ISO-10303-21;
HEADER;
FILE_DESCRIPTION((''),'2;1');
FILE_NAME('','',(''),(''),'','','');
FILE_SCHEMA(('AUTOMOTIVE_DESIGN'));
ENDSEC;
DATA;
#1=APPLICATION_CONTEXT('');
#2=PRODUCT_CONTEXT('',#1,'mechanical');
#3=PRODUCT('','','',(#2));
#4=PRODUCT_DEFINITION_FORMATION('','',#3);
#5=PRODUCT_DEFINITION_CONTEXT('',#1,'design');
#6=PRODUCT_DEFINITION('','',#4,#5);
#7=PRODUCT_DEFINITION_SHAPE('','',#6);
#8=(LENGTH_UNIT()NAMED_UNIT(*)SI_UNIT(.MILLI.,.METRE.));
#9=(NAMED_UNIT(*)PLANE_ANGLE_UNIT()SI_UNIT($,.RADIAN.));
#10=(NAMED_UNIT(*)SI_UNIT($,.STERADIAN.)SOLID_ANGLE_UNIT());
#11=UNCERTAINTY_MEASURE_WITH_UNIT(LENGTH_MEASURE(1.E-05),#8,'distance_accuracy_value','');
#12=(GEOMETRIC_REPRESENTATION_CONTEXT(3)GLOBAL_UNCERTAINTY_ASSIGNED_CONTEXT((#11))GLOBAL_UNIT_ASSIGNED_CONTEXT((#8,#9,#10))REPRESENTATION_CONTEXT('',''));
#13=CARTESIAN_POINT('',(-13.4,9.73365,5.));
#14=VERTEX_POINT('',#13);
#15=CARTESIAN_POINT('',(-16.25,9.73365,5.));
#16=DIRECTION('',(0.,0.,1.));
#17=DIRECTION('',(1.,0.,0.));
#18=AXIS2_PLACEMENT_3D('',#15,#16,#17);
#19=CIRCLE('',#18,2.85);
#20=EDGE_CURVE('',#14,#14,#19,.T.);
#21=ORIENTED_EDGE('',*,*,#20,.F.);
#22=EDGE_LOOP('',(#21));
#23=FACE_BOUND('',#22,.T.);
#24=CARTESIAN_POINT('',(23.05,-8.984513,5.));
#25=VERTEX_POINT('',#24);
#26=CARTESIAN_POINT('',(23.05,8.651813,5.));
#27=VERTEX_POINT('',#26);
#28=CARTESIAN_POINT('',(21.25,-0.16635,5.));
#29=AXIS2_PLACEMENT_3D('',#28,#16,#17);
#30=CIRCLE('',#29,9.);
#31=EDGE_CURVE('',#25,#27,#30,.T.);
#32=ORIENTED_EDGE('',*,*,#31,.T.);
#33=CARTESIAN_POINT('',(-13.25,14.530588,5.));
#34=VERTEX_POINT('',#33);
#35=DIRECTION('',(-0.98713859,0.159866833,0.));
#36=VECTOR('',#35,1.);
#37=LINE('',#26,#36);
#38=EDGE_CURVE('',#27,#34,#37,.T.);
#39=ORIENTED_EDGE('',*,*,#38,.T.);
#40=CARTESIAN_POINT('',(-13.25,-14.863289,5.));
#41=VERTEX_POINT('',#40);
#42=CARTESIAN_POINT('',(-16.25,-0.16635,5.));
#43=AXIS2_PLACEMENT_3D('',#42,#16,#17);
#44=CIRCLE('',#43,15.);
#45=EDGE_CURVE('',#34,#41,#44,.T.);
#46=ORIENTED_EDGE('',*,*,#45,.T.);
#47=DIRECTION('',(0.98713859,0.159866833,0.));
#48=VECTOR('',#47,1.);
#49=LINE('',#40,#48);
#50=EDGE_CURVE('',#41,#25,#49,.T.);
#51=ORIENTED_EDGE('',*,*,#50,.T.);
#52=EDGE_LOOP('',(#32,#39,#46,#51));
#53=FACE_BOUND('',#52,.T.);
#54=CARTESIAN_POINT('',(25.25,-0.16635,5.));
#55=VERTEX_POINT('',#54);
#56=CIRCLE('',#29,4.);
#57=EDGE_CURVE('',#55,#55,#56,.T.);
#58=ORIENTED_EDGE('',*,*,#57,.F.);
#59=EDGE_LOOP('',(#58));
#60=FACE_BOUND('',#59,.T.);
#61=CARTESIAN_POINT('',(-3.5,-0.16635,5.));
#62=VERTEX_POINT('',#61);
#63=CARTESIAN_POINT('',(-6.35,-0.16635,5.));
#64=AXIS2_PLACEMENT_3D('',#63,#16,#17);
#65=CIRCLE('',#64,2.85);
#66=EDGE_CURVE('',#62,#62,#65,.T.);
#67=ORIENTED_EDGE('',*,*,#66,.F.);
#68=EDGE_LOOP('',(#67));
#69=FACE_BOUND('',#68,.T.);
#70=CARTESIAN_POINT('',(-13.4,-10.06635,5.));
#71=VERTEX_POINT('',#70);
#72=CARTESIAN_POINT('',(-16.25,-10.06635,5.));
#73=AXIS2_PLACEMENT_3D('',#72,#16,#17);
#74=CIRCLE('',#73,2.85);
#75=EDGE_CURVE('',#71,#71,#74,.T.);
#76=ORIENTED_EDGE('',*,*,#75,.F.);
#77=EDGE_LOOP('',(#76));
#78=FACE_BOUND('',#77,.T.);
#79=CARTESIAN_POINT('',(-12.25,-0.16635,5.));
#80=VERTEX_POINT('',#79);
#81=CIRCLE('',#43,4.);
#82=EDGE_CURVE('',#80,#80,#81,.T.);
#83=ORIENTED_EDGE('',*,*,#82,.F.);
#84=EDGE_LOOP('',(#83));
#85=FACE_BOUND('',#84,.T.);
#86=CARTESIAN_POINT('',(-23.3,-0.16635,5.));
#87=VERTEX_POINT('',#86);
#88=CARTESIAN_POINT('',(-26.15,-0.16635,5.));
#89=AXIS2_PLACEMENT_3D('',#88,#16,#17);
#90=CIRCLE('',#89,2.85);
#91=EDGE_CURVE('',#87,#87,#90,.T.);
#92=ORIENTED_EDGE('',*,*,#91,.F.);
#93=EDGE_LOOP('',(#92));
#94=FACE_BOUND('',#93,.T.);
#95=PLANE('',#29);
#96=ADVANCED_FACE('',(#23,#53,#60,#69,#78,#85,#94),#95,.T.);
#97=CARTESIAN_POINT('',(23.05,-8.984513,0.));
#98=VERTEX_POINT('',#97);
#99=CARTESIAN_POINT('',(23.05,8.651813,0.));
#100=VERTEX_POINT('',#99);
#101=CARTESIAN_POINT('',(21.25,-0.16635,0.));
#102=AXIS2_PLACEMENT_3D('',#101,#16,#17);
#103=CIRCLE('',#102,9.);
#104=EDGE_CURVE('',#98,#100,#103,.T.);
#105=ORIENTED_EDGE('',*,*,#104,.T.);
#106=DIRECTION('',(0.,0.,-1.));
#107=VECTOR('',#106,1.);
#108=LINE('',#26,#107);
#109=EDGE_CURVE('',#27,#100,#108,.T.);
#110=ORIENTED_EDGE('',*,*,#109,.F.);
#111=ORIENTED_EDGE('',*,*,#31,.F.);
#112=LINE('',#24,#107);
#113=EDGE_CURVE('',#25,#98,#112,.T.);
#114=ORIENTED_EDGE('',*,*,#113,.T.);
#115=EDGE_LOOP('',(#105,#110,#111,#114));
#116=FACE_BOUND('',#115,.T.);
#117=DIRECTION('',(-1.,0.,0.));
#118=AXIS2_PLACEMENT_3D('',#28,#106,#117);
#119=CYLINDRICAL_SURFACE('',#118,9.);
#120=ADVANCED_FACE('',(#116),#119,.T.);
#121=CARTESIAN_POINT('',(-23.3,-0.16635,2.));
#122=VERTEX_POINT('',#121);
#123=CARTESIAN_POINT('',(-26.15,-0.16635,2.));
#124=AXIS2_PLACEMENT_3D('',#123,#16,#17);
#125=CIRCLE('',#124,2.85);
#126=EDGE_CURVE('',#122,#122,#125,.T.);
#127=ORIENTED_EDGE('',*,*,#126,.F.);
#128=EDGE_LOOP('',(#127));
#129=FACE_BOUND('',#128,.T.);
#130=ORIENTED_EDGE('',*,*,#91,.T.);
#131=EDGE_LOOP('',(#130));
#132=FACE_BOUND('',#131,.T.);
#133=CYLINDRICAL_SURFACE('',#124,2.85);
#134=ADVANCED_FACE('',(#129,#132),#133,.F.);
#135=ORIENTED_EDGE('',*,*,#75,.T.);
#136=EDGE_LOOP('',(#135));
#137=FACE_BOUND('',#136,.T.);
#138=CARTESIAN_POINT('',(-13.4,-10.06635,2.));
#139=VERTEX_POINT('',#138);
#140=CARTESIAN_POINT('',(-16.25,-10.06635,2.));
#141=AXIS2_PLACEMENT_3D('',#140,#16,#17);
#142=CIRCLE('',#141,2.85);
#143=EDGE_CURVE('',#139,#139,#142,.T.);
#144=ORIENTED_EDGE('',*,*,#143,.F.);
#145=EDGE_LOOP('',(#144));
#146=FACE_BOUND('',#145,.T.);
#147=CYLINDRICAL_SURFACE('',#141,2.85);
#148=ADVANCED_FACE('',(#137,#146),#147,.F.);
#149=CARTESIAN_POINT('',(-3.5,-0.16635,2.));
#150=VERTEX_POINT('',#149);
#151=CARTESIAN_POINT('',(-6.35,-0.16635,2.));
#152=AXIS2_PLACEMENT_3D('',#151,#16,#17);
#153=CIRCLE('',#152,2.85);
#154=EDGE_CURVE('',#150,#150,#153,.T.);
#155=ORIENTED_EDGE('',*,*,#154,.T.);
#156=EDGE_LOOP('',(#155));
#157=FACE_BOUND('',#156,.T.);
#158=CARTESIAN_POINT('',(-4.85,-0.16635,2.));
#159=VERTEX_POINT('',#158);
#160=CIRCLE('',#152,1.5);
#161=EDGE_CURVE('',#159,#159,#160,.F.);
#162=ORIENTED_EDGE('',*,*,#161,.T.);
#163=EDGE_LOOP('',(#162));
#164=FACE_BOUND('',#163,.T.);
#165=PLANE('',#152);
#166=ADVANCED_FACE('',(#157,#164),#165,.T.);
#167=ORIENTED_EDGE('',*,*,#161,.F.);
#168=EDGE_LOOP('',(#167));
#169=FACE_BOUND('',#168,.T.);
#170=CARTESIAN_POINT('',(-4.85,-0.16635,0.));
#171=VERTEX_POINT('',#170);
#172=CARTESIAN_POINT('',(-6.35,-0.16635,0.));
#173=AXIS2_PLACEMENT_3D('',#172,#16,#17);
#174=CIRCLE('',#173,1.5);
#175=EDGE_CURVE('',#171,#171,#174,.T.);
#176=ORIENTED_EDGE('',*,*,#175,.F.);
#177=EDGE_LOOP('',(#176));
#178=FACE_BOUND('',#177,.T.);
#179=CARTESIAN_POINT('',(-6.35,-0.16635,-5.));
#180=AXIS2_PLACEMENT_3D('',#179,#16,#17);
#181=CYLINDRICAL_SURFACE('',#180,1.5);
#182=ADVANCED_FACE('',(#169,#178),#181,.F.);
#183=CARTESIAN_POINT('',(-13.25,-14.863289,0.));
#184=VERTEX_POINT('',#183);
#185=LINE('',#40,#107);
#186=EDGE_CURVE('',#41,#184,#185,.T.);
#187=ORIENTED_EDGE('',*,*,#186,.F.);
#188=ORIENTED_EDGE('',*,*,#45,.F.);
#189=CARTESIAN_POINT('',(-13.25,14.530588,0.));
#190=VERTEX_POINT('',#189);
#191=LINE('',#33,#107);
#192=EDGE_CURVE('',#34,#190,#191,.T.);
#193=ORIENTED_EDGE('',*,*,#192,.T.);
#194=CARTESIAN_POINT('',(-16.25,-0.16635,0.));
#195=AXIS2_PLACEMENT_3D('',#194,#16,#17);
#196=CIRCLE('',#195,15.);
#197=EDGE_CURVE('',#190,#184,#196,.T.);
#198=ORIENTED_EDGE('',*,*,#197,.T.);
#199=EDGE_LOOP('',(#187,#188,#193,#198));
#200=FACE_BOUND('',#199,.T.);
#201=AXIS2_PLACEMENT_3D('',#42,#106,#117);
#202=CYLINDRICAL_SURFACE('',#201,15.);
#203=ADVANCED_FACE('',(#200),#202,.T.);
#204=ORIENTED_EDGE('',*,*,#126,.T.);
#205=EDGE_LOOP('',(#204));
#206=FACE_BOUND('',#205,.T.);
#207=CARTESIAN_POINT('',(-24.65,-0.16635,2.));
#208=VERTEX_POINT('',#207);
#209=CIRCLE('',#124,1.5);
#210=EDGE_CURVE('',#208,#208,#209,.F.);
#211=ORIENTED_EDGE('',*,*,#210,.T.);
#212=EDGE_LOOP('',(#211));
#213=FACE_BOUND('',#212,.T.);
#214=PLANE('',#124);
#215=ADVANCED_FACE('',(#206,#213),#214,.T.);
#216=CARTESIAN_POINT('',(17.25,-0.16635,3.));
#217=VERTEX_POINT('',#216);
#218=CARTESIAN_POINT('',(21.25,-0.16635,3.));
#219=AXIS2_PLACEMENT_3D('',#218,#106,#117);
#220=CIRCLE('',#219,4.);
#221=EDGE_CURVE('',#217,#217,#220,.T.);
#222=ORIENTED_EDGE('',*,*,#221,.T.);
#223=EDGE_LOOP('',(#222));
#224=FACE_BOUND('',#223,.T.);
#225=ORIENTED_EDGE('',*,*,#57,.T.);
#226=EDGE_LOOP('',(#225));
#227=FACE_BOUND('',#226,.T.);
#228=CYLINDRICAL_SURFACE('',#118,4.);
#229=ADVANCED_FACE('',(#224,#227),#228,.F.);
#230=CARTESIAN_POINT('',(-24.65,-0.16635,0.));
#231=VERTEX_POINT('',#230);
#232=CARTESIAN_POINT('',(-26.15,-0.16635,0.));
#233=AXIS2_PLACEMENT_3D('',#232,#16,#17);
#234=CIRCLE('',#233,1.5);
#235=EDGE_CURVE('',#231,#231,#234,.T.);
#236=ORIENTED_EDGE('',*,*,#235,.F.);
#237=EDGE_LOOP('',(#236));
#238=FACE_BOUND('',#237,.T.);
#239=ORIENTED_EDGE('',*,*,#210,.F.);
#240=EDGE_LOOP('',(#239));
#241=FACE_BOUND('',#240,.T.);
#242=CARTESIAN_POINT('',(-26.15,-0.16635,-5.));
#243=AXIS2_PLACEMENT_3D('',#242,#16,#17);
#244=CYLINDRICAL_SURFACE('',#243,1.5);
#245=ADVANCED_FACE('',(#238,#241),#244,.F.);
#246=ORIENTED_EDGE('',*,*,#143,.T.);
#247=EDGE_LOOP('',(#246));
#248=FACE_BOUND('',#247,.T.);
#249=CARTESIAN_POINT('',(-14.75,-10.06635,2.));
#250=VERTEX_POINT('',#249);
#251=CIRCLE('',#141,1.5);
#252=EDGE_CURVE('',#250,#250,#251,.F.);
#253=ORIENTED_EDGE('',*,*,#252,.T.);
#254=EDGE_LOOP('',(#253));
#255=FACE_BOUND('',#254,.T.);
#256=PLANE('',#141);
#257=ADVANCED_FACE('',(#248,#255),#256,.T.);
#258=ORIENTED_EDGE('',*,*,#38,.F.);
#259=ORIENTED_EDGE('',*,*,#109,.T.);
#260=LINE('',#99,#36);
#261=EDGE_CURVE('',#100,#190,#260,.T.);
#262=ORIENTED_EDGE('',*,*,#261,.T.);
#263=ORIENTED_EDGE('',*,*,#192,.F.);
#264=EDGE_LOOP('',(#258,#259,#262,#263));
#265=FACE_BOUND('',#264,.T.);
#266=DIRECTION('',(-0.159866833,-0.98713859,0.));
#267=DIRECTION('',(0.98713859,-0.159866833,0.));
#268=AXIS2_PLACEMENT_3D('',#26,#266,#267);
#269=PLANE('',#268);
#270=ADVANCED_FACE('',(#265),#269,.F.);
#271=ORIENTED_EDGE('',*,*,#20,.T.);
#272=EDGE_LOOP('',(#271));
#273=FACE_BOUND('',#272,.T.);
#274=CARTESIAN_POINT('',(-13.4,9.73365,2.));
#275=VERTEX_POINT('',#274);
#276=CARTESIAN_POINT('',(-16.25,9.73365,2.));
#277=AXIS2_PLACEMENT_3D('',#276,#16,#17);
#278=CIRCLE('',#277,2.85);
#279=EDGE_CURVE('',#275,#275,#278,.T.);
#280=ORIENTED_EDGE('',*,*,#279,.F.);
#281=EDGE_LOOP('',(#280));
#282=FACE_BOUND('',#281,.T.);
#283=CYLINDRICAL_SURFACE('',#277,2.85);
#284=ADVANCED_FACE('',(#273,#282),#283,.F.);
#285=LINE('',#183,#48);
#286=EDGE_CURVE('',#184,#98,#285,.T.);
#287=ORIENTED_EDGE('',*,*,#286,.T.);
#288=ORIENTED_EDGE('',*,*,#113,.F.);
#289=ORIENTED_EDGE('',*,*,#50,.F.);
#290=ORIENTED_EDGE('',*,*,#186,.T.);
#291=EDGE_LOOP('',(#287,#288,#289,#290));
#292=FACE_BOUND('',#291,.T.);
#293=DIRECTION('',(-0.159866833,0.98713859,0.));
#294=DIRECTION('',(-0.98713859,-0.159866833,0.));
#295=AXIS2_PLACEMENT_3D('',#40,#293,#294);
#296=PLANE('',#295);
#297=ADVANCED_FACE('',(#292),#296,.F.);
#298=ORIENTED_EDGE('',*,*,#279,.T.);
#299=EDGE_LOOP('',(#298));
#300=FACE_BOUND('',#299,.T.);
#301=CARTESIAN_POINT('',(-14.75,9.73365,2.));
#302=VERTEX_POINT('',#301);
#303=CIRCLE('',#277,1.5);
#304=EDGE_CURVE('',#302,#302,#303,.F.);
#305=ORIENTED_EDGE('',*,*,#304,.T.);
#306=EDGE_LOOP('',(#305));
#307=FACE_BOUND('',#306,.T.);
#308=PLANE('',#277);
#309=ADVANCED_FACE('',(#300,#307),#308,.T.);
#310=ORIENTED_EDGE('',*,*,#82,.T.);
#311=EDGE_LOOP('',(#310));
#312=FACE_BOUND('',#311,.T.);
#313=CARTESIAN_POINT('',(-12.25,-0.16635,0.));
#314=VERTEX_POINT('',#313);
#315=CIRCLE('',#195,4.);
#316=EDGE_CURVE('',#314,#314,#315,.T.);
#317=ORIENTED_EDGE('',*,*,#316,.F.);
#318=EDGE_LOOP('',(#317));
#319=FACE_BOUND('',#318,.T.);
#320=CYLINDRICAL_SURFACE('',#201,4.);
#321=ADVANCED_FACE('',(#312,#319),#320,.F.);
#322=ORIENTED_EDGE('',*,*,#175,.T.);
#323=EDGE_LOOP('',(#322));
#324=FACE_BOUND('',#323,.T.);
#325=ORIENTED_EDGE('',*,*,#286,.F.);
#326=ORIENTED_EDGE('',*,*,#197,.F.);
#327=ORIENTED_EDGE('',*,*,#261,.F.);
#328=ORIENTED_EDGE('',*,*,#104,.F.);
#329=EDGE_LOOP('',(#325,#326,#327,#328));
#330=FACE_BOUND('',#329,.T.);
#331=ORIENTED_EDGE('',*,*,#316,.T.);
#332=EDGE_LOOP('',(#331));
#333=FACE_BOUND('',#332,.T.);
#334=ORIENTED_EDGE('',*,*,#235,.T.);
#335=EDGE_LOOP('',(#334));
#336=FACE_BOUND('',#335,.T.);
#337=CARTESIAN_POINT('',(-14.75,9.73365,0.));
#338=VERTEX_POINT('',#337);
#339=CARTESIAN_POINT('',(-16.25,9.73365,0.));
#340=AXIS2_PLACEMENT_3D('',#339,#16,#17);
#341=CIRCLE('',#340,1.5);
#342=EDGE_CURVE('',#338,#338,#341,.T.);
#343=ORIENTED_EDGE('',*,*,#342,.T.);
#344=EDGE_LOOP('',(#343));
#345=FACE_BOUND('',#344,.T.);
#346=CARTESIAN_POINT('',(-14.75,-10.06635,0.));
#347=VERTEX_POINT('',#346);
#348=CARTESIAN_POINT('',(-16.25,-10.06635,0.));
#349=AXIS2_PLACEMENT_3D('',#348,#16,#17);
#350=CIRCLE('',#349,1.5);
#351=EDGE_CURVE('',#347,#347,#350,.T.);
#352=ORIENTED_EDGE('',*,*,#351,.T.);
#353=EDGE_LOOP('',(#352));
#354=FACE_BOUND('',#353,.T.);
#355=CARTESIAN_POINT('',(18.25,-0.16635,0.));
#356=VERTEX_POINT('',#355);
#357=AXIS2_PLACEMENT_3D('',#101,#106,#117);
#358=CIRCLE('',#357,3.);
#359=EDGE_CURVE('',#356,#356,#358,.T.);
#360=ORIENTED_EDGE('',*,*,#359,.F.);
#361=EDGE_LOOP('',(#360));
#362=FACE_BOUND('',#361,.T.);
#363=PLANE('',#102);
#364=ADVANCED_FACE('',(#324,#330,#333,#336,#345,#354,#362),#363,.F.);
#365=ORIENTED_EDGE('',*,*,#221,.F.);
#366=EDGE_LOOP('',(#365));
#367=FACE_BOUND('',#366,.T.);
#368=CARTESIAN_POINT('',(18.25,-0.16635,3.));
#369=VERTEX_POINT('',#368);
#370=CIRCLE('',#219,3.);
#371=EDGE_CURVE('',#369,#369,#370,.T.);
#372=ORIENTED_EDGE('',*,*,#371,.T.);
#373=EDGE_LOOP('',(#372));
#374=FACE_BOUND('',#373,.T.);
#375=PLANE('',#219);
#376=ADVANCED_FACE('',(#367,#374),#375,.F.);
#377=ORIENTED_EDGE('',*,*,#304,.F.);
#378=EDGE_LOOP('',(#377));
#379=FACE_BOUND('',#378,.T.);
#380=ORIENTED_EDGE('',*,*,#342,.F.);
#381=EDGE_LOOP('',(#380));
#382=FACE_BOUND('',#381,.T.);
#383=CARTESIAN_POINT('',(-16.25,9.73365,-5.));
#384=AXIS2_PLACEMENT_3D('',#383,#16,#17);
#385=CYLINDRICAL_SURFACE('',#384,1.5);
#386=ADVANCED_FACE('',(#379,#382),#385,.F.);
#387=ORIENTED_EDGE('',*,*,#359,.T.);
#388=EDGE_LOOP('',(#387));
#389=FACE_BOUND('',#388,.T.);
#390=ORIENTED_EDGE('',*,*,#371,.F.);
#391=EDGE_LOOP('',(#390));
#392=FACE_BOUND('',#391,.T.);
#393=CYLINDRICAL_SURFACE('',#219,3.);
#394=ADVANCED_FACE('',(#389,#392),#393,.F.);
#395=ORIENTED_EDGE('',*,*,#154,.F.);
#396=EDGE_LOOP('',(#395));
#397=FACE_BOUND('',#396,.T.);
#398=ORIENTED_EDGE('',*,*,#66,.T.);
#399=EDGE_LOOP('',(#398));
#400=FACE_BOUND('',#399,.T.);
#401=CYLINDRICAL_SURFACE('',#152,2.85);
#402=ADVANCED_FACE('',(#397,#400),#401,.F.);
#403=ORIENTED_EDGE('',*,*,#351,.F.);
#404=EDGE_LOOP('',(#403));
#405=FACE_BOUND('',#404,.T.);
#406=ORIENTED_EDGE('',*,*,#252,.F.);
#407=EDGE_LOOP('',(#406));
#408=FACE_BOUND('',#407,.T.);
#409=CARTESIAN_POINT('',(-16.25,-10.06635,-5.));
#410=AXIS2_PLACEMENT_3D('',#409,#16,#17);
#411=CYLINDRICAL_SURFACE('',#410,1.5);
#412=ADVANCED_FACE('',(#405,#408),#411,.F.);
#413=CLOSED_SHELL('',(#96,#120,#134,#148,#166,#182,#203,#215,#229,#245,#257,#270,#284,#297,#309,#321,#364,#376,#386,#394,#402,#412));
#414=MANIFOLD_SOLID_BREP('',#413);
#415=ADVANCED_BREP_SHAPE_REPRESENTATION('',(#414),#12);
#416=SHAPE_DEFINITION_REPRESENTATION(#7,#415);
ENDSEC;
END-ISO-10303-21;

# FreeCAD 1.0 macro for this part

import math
import FreeCAD as App
import Part
import Sketcher

V = App.Vector

doc = App.newDocument("Part")
body = doc.addObject("PartDesign::Body", "Body")

sketch1 = body.newObject("Sketcher::SketchObject", "Sketch")
sketch1.AttachmentSupport = (doc.getObject("XY_Plane"), [""])
sketch1.MapMode = "FlatFace"
sketch1.addGeometry(Part.LineSegment(V(23.1, 8.7, 0), V(-13.2, 14.5, 0)), False)
sketch1.addGeometry(Part.ArcOfCircle(Part.Circle(V(-16.2, -0.2, 0), V(0, 0, 1), 15), math.radians(78), math.radians(282)), False)
sketch1.addGeometry(Part.LineSegment(V(-13.2, -14.9, 0), V(23.1, -9, 0)), False)
sketch1.addGeometry(Part.ArcOfCircle(Part.Circle(V(21.2, -0.2, 0), V(0, 0, 1), 9), math.radians(-78), math.radians(78)), False)
sketch1.addGeometry(Part.Circle(V(-16.2, -0.2, 0), V(0, 0, 1), 4), False)
sketch1.addGeometry(Part.Circle(V(21.2, -0.2, 0), V(0, 0, 1), 4), False)
sketch1.addConstraint(Sketcher.Constraint("Coincident", 0, 2, 1, 1))
sketch1.addConstraint(Sketcher.Constraint("Coincident", 1, 2, 2, 1))
sketch1.addConstraint(Sketcher.Constraint("Coincident", 2, 2, 3, 1))
sketch1.addConstraint(Sketcher.Constraint("Coincident", 3, 2, 0, 1))
sketch1.addConstraint(Sketcher.Constraint("Coincident", 4, 3, 1, 3))
sketch1.addConstraint(Sketcher.Constraint("Coincident", 5, 3, 3, 3))
sketch1.addConstraint(Sketcher.Constraint("Equal", 4, 5))
sketch1.addConstraint(Sketcher.Constraint("Horizontal", 1, 3, 3, 3))
sketch1.addConstraint(Sketcher.Constraint("Vertical", 0, 2, 1, 2))
sketch1.addConstraint(Sketcher.Constraint("Vertical", 2, 2, 3, 2))
sketch1.addConstraint(Sketcher.Constraint("Diameter", 4, 8.0))
sketch1.addConstraint(Sketcher.Constraint("Radius", 1, 15.0))
sketch1.addConstraint(Sketcher.Constraint("Radius", 3, 9.0))
sketch1.addConstraint(Sketcher.Constraint("DistanceX", 1, 3, 0, 2, 3.0))
sketch1.addConstraint(Sketcher.Constraint("DistanceX", 1, 3, 3, 3, 37.5))
sketch1.addConstraint(Sketcher.Constraint("DistanceX", 3, 3, 2, 2, 1.8))
sketch1.addConstraint(Sketcher.Constraint("DistanceX", 1, 3, -1, 1, 16.25))
sketch1.addConstraint(Sketcher.Constraint("DistanceY", 1, 3, -1, 1, 0.16635))
pad1 = body.newObject("PartDesign::Pad", "Pad")
pad1.Profile = sketch1
pad1.Length = 5

sketch2 = body.newObject("Sketcher::SketchObject", "Sketch001")
sketch2.AttachmentSupport = (doc.getObject("XY_Plane"), [""])
sketch2.MapMode = "FlatFace"
sketch2.addGeometry(Part.Circle(V(21.2, -0.2, 0), V(0, 0, 1), 4), False)
sketch2.addGeometry(Part.Circle(V(21.2, -0.2, 0), V(0, 0, 1), 3), False)
sketch2.addConstraint(Sketcher.Constraint("Coincident", 1, 3, 0, 3))
sketch2.addConstraint(Sketcher.Constraint("Diameter", 0, 8.0))
sketch2.addConstraint(Sketcher.Constraint("Diameter", 1, 6.0))
sketch2.addConstraint(Sketcher.Constraint("DistanceX", -1, 1, 0, 3, 21.25))
sketch2.addConstraint(Sketcher.Constraint("DistanceY", 0, 3, -1, 1, 0.16635))
pad2 = body.newObject("PartDesign::Pad", "Pad001")
pad2.Profile = sketch2
pad2.Length = 3

sketch3 = body.newObject("Sketcher::SketchObject", "Sketch002")
sketch3.AttachmentSupport = (doc.getObject("XY_Plane"), [""])
sketch3.MapMode = "FlatFace"
sketch3.AttachmentOffset = App.Placement(V(0, 0, 5), App.Rotation())
sketch3.addGeometry(Part.Circle(V(-16.2, 9.7, 0), V(0, 0, 1), 1.5), False)
sketch3.addGeometry(Part.Circle(V(-6.3, -0.2, 0), V(0, 0, 1), 1.5), False)
sketch3.addGeometry(Part.Circle(V(-26.1, -0.2, 0), V(0, 0, 1), 1.5), False)
sketch3.addGeometry(Part.Circle(V(-16.2, -10.1, 0), V(0, 0, 1), 1.5), False)
sketch3.addConstraint(Sketcher.Constraint("Equal", 0, 1))
sketch3.addConstraint(Sketcher.Constraint("Equal", 1, 2))
sketch3.addConstraint(Sketcher.Constraint("Equal", 2, 3))
sketch3.addConstraint(Sketcher.Constraint("Horizontal", 1, 3, 2, 3))
sketch3.addConstraint(Sketcher.Constraint("Vertical", 0, 3, 3, 3))
sketch3.addConstraint(Sketcher.Constraint("Diameter", 0, 3.0))
sketch3.addConstraint(Sketcher.Constraint("DistanceX", 0, 3, 1, 3, 9.9))
sketch3.addConstraint(Sketcher.Constraint("DistanceY", 1, 3, 0, 3, 9.9))
sketch3.addConstraint(Sketcher.Constraint("DistanceX", 2, 3, 0, 3, 9.9))
sketch3.addConstraint(Sketcher.Constraint("DistanceY", 3, 3, 2, 3, 9.9))
sketch3.addConstraint(Sketcher.Constraint("DistanceX", 0, 3, -1, 1, 16.25))
sketch3.addConstraint(Sketcher.Constraint("DistanceY", -1, 1, 0, 3, 9.73365))
pocket1 = body.newObject("PartDesign::Pocket", "Pocket")
pocket1.Profile = sketch3
pocket1.Length = 10

sketch4 = body.newObject("Sketcher::SketchObject", "Sketch003")
sketch4.AttachmentSupport = (doc.getObject("XY_Plane"), [""])
sketch4.MapMode = "FlatFace"
sketch4.AttachmentOffset = App.Placement(V(0, 0, 5), App.Rotation())
sketch4.addGeometry(Part.Circle(V(-16.2, 9.7, 0), V(0, 0, 1), 2.9), False)
sketch4.addGeometry(Part.Circle(V(-26.1, -0.2, 0), V(0, 0, 1), 2.9), False)
sketch4.addGeometry(Part.Circle(V(-6.3, -0.2, 0), V(0, 0, 1), 2.9), False)
sketch4.addGeometry(Part.Circle(V(-16.2, -10.1, 0), V(0, 0, 1), 2.9), False)
sketch4.addConstraint(Sketcher.Constraint("Equal", 0, 1))
sketch4.addConstraint(Sketcher.Constraint("Equal", 1, 2))
sketch4.addConstraint(Sketcher.Constraint("Equal", 2, 3))
sketch4.addConstraint(Sketcher.Constraint("Horizontal", 1, 3, 2, 3))
sketch4.addConstraint(Sketcher.Constraint("Vertical", 0, 3, 3, 3))
sketch4.addConstraint(Sketcher.Constraint("Diameter", 0, 5.7))
sketch4.addConstraint(Sketcher.Constraint("DistanceX", 1, 3, 0, 3, 9.9))
sketch4.addConstraint(Sketcher.Constraint("DistanceY", 1, 3, 0, 3, 9.9))
sketch4.addConstraint(Sketcher.Constraint("DistanceX", 0, 3, 2, 3, 9.9))
sketch4.addConstraint(Sketcher.Constraint("DistanceY", 3, 3, 1, 3, 9.9))
sketch4.addConstraint(Sketcher.Constraint("DistanceX", 0, 3, -1, 1, 16.25))
sketch4.addConstraint(Sketcher.Constraint("DistanceY", -1, 1, 0, 3, 9.73365))
pocket2 = body.newObject("PartDesign::Pocket", "Pocket001")
pocket2.Profile = sketch4
pocket2.Length = 3

doc.recompute()
